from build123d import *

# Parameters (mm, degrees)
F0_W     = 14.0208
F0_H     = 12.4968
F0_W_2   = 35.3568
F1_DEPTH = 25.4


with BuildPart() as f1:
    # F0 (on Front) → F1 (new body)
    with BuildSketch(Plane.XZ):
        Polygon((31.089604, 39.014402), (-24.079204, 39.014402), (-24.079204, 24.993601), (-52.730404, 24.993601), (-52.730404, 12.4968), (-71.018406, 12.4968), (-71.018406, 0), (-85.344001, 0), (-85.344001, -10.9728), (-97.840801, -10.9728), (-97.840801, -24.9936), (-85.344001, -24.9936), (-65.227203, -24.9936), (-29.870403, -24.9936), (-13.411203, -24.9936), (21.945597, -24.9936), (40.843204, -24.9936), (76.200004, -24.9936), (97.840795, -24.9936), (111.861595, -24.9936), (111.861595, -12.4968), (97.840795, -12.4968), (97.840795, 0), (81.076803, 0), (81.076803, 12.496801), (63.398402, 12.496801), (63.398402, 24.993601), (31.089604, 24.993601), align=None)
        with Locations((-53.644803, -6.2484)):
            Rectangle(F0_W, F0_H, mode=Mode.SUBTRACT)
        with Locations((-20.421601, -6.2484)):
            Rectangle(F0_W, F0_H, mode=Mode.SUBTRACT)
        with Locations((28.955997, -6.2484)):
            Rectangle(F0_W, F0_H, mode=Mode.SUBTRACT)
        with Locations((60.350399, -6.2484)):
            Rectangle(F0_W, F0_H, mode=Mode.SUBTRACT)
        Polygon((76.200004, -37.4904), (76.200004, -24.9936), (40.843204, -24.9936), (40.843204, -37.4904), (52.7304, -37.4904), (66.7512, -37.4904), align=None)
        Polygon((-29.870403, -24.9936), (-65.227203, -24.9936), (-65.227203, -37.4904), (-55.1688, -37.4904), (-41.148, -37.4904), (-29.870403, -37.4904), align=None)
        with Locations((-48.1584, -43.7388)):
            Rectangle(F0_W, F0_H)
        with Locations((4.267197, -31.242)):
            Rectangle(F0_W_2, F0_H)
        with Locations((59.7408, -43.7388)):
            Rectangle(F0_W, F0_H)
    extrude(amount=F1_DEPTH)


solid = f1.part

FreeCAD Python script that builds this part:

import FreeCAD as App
import Part
import Sketcher
Q = App.Units.Quantity

doc = App.newDocument("Part")
body = doc.addObject("PartDesign::Body", "Body")

# Sketch on XZ plane
sketch1 = body.newObject("Sketcher::SketchObject", "Sketch")
sketch1.AttachmentSupport = (doc.getObject("XZ_Plane"), [""])
sketch1.MapMode = "FlatFace"
sketch1.addGeometry([
    Part.LineSegment(App.Vector(31, 39, 0), App.Vector(-24, 39, 0)),  # 0
    Part.LineSegment(App.Vector(-24, 39, 0), App.Vector(-24, 25, 0)),  # 1
    Part.LineSegment(App.Vector(-24, 25, 0), App.Vector(-53, 25, 0)),  # 2
    Part.LineSegment(App.Vector(-53, 25, 0), App.Vector(-53, 12, 0)),  # 3
    Part.LineSegment(App.Vector(-53, 12, 0), App.Vector(-71, 12, 0)),  # 4
    Part.LineSegment(App.Vector(-71, 12, 0), App.Vector(-71, 0, 0)),  # 5
    Part.LineSegment(App.Vector(-71, 0, 0), App.Vector(-85, 0, 0)),  # 6
    Part.LineSegment(App.Vector(-85, 0, 0), App.Vector(-85, -11, 0)),  # 7
    Part.LineSegment(App.Vector(-85, -11, 0), App.Vector(-98, -11, 0)),  # 8
    Part.LineSegment(App.Vector(-98, -11, 0), App.Vector(-98, -25, 0)),  # 9
    Part.LineSegment(App.Vector(-98, -25, 0), App.Vector(-65, -25, 0)),  # 10
    Part.LineSegment(App.Vector(-65, -25, 0), App.Vector(-65, -37, 0)),  # 11
    Part.LineSegment(App.Vector(-65, -37, 0), App.Vector(-55, -37, 0)),  # 12
    Part.LineSegment(App.Vector(-55, -37, 0), App.Vector(-55, -50, 0)),  # 13
    Part.LineSegment(App.Vector(-55, -50, 0), App.Vector(-41, -50, 0)),  # 14
    Part.LineSegment(App.Vector(-41, -50, 0), App.Vector(-41, -37, 0)),  # 15
    Part.LineSegment(App.Vector(-41, -37, 0), App.Vector(-30, -37, 0)),  # 16
    Part.LineSegment(App.Vector(-30, -37, 0), App.Vector(-30, -25, 0)),  # 17
    Part.LineSegment(App.Vector(-30, -25, 0), App.Vector(-13, -25, 0)),  # 18
    Part.LineSegment(App.Vector(-13, -25, 0), App.Vector(-13, -37, 0)),  # 19
    Part.LineSegment(App.Vector(-13, -37, 0), App.Vector(22, -37, 0)),  # 20
    Part.LineSegment(App.Vector(22, -37, 0), App.Vector(22, -25, 0)),  # 21
    Part.LineSegment(App.Vector(22, -25, 0), App.Vector(41, -25, 0)),  # 22
    Part.LineSegment(App.Vector(41, -25, 0), App.Vector(41, -37, 0)),  # 23
    Part.LineSegment(App.Vector(41, -37, 0), App.Vector(53, -37, 0)),  # 24
    Part.LineSegment(App.Vector(53, -37, 0), App.Vector(53, -50, 0)),  # 25
    Part.LineSegment(App.Vector(53, -50, 0), App.Vector(67, -50, 0)),  # 26
    Part.LineSegment(App.Vector(67, -50, 0), App.Vector(67, -37, 0)),  # 27
    Part.LineSegment(App.Vector(67, -37, 0), App.Vector(76, -37, 0)),  # 28
    Part.LineSegment(App.Vector(76, -37, 0), App.Vector(76, -25, 0)),  # 29
    Part.LineSegment(App.Vector(76, -25, 0), App.Vector(112, -25, 0)),  # 30
    Part.LineSegment(App.Vector(112, -25, 0), App.Vector(112, -12, 0)),  # 31
    Part.LineSegment(App.Vector(112, -12, 0), App.Vector(98, -12, 0)),  # 32
    Part.LineSegment(App.Vector(98, -12, 0), App.Vector(98, 0, 0)),  # 33
    Part.LineSegment(App.Vector(98, 0, 0), App.Vector(81, 0, 0)),  # 34
    Part.LineSegment(App.Vector(81, 0, 0), App.Vector(81, 12, 0)),  # 35
    Part.LineSegment(App.Vector(81, 12, 0), App.Vector(63, 12, 0)),  # 36
    Part.LineSegment(App.Vector(63, 12, 0), App.Vector(63, 25, 0)),  # 37
    Part.LineSegment(App.Vector(63, 25, 0), App.Vector(31, 25, 0)),  # 38
    Part.LineSegment(App.Vector(31, 25, 0), App.Vector(31, 39, 0)),  # 39
    Part.LineSegment(App.Vector(-47, -12, 0), App.Vector(-61, -12, 0)),  # 40
    Part.LineSegment(App.Vector(-61, -12, 0), App.Vector(-61, 0, 0)),  # 41
    Part.LineSegment(App.Vector(-61, 0, 0), App.Vector(-47, 0, 0)),  # 42
    Part.LineSegment(App.Vector(-47, 0, 0), App.Vector(-47, -12, 0)),  # 43
    Part.LineSegment(App.Vector(-13, -12, 0), App.Vector(-27, -12, 0)),  # 44
    Part.LineSegment(App.Vector(-27, -12, 0), App.Vector(-27, 0, 0)),  # 45
    Part.LineSegment(App.Vector(-27, 0, 0), App.Vector(-13, 0, 0)),  # 46
    Part.LineSegment(App.Vector(-13, 0, 0), App.Vector(-13, -12, 0)),  # 47
    Part.LineSegment(App.Vector(36, -12, 0), App.Vector(22, -12, 0)),  # 48
    Part.LineSegment(App.Vector(22, -12, 0), App.Vector(22, 0, 0)),  # 49
    Part.LineSegment(App.Vector(22, 0, 0), App.Vector(36, 0, 0)),  # 50
    Part.LineSegment(App.Vector(36, 0, 0), App.Vector(36, -12, 0)),  # 51
    Part.LineSegment(App.Vector(67, -12, 0), App.Vector(53, -12, 0)),  # 52
    Part.LineSegment(App.Vector(53, -12, 0), App.Vector(53, 0, 0)),  # 53
    Part.LineSegment(App.Vector(53, 0, 0), App.Vector(67, 0, 0)),  # 54
    Part.LineSegment(App.Vector(67, 0, 0), App.Vector(67, -12, 0)),  # 55
], False)
sketch1.addConstraint([
    Sketcher.Constraint("Coincident", 0, 2, 1, 1),
    Sketcher.Constraint("Coincident", 1, 2, 2, 1),
    Sketcher.Constraint("Coincident", 2, 2, 3, 1),
    Sketcher.Constraint("Coincident", 3, 2, 4, 1),
    Sketcher.Constraint("Coincident", 4, 2, 5, 1),
    Sketcher.Constraint("Coincident", 5, 2, 6, 1),
    Sketcher.Constraint("Coincident", 6, 2, 7, 1),
    Sketcher.Constraint("Coincident", 7, 2, 8, 1),
    Sketcher.Constraint("Coincident", 8, 2, 9, 1),
    Sketcher.Constraint("Coincident", 9, 2, 10, 1),
    Sketcher.Constraint("Coincident", 10, 2, 11, 1),
    Sketcher.Constraint("Coincident", 11, 2, 12, 1),
    Sketcher.Constraint("Coincident", 12, 2, 13, 1),
    Sketcher.Constraint("Coincident", 13, 2, 14, 1),
    Sketcher.Constraint("Coincident", 14, 2, 15, 1),
    Sketcher.Constraint("Coincident", 15, 2, 16, 1),
    Sketcher.Constraint("Coincident", 16, 2, 17, 1),
    Sketcher.Constraint("Coincident", 17, 2, 18, 1),
    Sketcher.Constraint("Coincident", 18, 2, 19, 1),
    Sketcher.Constraint("Coincident", 19, 2, 20, 1),
    Sketcher.Constraint("Coincident", 20, 2, 21, 1),
    Sketcher.Constraint("Coincident", 21, 2, 22, 1),
    Sketcher.Constraint("Coincident", 22, 2, 23, 1),
    Sketcher.Constraint("Coincident", 23, 2, 24, 1),
    Sketcher.Constraint("Coincident", 24, 2, 25, 1),
    Sketcher.Constraint("Coincident", 25, 2, 26, 1),
    Sketcher.Constraint("Coincident", 26, 2, 27, 1),
    Sketcher.Constraint("Coincident", 27, 2, 28, 1),
    Sketcher.Constraint("Coincident", 28, 2, 29, 1),
    Sketcher.Constraint("Coincident", 29, 2, 30, 1),
    Sketcher.Constraint("Coincident", 30, 2, 31, 1),
    Sketcher.Constraint("Coincident", 31, 2, 32, 1),
    Sketcher.Constraint("Coincident", 32, 2, 33, 1),
    Sketcher.Constraint("Coincident", 33, 2, 34, 1),
    Sketcher.Constraint("Coincident", 34, 2, 35, 1),
    Sketcher.Constraint("Coincident", 35, 2, 36, 1),
    Sketcher.Constraint("Coincident", 36, 2, 37, 1),
    Sketcher.Constraint("Coincident", 37, 2, 38, 1),
    Sketcher.Constraint("Coincident", 38, 2, 39, 1),
    Sketcher.Constraint("Coincident", 39, 2, 0, 1),
    Sketcher.Constraint("Coincident", 40, 2, 41, 1),
    Sketcher.Constraint("Coincident", 41, 2, 42, 1),
    Sketcher.Constraint("Coincident", 42, 2, 43, 1),
    Sketcher.Constraint("Coincident", 43, 2, 40, 1),
    Sketcher.Constraint("Coincident", 44, 2, 45, 1),
    Sketcher.Constraint("Coincident", 45, 2, 46, 1),
    Sketcher.Constraint("Coincident", 46, 2, 47, 1),
    Sketcher.Constraint("Coincident", 47, 2, 44, 1),
    Sketcher.Constraint("Coincident", 48, 2, 49, 1),
    Sketcher.Constraint("Coincident", 49, 2, 50, 1),
    Sketcher.Constraint("Coincident", 50, 2, 51, 1),
    Sketcher.Constraint("Coincident", 51, 2, 48, 1),
    Sketcher.Constraint("Coincident", 52, 2, 53, 1),
    Sketcher.Constraint("Coincident", 53, 2, 54, 1),
    Sketcher.Constraint("Coincident", 54, 2, 55, 1),
    Sketcher.Constraint("Coincident", 55, 2, 52, 1),
    Sketcher.Constraint("Horizontal", 0),
    Sketcher.Constraint("Vertical", 1),
    Sketcher.Constraint("Horizontal", 2),
    Sketcher.Constraint("Vertical", 3),
    Sketcher.Constraint("Horizontal", 4),
    Sketcher.Constraint("Vertical", 5),
    Sketcher.Constraint("Horizontal", 6),
    Sketcher.Constraint("Vertical", 7),
    Sketcher.Constraint("Horizontal", 8),
    Sketcher.Constraint("Vertical", 9),
    Sketcher.Constraint("Horizontal", 10),
    Sketcher.Constraint("Vertical", 11),
    Sketcher.Constraint("Horizontal", 12),
    Sketcher.Constraint("Vertical", 13),
    Sketcher.Constraint("Horizontal", 14),
    Sketcher.Constraint("Vertical", 15),
    Sketcher.Constraint("Horizontal", 16),
    Sketcher.Constraint("Vertical", 17),
    Sketcher.Constraint("Horizontal", 18),
    Sketcher.Constraint("Vertical", 19),
    Sketcher.Constraint("Horizontal", 20),
    Sketcher.Constraint("Vertical", 21),
    Sketcher.Constraint("Horizontal", 22),
    Sketcher.Constraint("Vertical", 23),
    Sketcher.Constraint("Horizontal", 24),
    Sketcher.Constraint("Vertical", 25),
    Sketcher.Constraint("Horizontal", 26),
    Sketcher.Constraint("Vertical", 27),
    Sketcher.Constraint("Horizontal", 28),
    Sketcher.Constraint("Vertical", 29),
    Sketcher.Constraint("Horizontal", 30),
    Sketcher.Constraint("Vertical", 31),
    Sketcher.Constraint("Horizontal", 32),
    Sketcher.Constraint("Vertical", 33),
    Sketcher.Constraint("Horizontal", 34),
    Sketcher.Constraint("Vertical", 35),
    Sketcher.Constraint("Horizontal", 36),
    Sketcher.Constraint("Vertical", 37),
    Sketcher.Constraint("Horizontal", 38),
    Sketcher.Constraint("Vertical", 39),
    Sketcher.Constraint("Horizontal", 40),
    Sketcher.Constraint("Vertical", 41),
    Sketcher.Constraint("Horizontal", 42),
    Sketcher.Constraint("Vertical", 43),
    Sketcher.Constraint("Horizontal", 44),
    Sketcher.Constraint("Vertical", 45),
    Sketcher.Constraint("Horizontal", 46),
    Sketcher.Constraint("Vertical", 47),
    Sketcher.Constraint("Horizontal", 48),
    Sketcher.Constraint("Vertical", 49),
    Sketcher.Constraint("Horizontal", 50),
    Sketcher.Constraint("Vertical", 51),
    Sketcher.Constraint("Horizontal", 52),
    Sketcher.Constraint("Vertical", 53),
    Sketcher.Constraint("Horizontal", 54),
    Sketcher.Constraint("Vertical", 55),
    Sketcher.Constraint("PointOnObject", 5, 2, -1),
    Sketcher.Constraint("PointOnObject", 33, 2, -1),
    Sketcher.Constraint("PointOnObject", 41, 2, -1),
    Sketcher.Constraint("PointOnObject", 45, 2, -1),
    Sketcher.Constraint("PointOnObject", 49, 2, -1),
    Sketcher.Constraint("PointOnObject", 53, 2, -1),
    Sketcher.Constraint("Horizontal", 12, 2, 15, 2),
    Sketcher.Constraint("Horizontal", 10, 2, 17, 2),
    Sketcher.Constraint("Horizontal", 16, 2, 19, 2),
    Sketcher.Constraint("Horizontal", 18, 2, 21, 2),
    Sketcher.Constraint("Horizontal", 20, 2, 23, 2),
    Sketcher.Constraint("Horizontal", 14, 2, 25, 2),
    Sketcher.Constraint("Horizontal", 24, 2, 27, 2),
    Sketcher.Constraint("Horizontal", 22, 2, 29, 2),
    Sketcher.Constraint("Horizontal", 4, 2, 35, 2),
    Sketcher.Constraint("Horizontal", 2, 2, 37, 2),
    Sketcher.Constraint("Horizontal", 32, 2, 40, 2),
    Sketcher.Constraint("Horizontal", 43, 2, 44, 2),
    Sketcher.Constraint("Horizontal", 47, 2, 48, 2),
    Sketcher.Constraint("Horizontal", 51, 2, 52, 2),
    Sketcher.Constraint("Vertical", 21, 2, 48, 2),
    Sketcher.Constraint("Equal", 14, 26),
    Sketcher.Constraint("Equal", 26, 32),
    Sketcher.Constraint("Equal", 32, 40),
    Sketcher.Constraint("Equal", 42, 44),
    Sketcher.Constraint("Equal", 46, 48),
    Sketcher.Constraint("Equal", 50, 52),
    Sketcher.Constraint("Equal", 54, 1),
    Sketcher.Constraint("Equal", 8, 3),
    Sketcher.Constraint("Equal", 3, 5),
    Sketcher.Constraint("Equal", 1, 9),
    Sketcher.Constraint("Equal", 5, 11),
    Sketcher.Constraint("Equal", 11, 13),
    Sketcher.Constraint("Equal", 29, 31),
    Sketcher.Constraint("Equal", 31, 33),
    Sketcher.Constraint("DistanceX", -1, 1, 28, 2, Q("3.0000002 in")),
    Sketcher.Constraint("DistanceX", 4, 2, 4, 1, Q("0.7200001 in")),
    Sketcher.Constraint("DistanceX", -1, 1, 52, 2, Q("2.1 in")),
    Sketcher.Constraint("DistanceX", 2, 2, 2, 1, Q("1.128 in")),
    Sketcher.Constraint("DistanceX", 6, 2, 6, 1, Q("0.5639998 in")),
    Sketcher.Constraint("DistanceX", 8, 2, 8, 1, Q("0.492 in")),
    Sketcher.Constraint("DistanceX", 10, 1, 10, 2, Q("1.2839999 in")),
    Sketcher.Constraint("DistanceX", 12, 1, 12, 2, Q("0.3960001 in")),
    Sketcher.Constraint("DistanceX", 14, 1, 14, 2, Q("0.552 in")),
    Sketcher.Constraint("DistanceX", 16, 1, 16, 2, Q("0.4439999 in")),
    Sketcher.Constraint("DistanceX", 18, 1, 18, 2, Q("0.648 in")),
    Sketcher.Constraint("DistanceX", 20, 1, 20, 2, Q("1.392 in")),
    Sketcher.Constraint("DistanceX", 24, 1, 24, 2, Q("0.4679998 in")),
    Sketcher.Constraint("DistanceX", 28, 1, 28, 2, Q("0.3720002 in")),
    Sketcher.Constraint("DistanceX", 36, 2, 36, 1, Q("0.696 in")),
    Sketcher.Constraint("DistanceX", 38, 2, 38, 1, Q("1.2719999 in")),
    Sketcher.Constraint("DistanceX", 6, 2, -1, 1, Q("3.36 in")),
    Sketcher.Constraint("DistanceX", 44, 2, -1, 1, Q("1.08 in")),
    Sketcher.Constraint("DistanceX", 10, 2, 40, 2, Q("0.18 in")),
    Sketcher.Constraint("DistanceX", 54, 2, 34, 2, Q("0.5400002 in")),
    Sketcher.Constraint("DistanceX", -1, 1, 30, 2, Q("4.4039998 in")),
])
pad1 = body.newObject("PartDesign::Pad", "Pad")
pad1.Profile = sketch1
pad1.Length = Q("1 in")

doc.recompute()
